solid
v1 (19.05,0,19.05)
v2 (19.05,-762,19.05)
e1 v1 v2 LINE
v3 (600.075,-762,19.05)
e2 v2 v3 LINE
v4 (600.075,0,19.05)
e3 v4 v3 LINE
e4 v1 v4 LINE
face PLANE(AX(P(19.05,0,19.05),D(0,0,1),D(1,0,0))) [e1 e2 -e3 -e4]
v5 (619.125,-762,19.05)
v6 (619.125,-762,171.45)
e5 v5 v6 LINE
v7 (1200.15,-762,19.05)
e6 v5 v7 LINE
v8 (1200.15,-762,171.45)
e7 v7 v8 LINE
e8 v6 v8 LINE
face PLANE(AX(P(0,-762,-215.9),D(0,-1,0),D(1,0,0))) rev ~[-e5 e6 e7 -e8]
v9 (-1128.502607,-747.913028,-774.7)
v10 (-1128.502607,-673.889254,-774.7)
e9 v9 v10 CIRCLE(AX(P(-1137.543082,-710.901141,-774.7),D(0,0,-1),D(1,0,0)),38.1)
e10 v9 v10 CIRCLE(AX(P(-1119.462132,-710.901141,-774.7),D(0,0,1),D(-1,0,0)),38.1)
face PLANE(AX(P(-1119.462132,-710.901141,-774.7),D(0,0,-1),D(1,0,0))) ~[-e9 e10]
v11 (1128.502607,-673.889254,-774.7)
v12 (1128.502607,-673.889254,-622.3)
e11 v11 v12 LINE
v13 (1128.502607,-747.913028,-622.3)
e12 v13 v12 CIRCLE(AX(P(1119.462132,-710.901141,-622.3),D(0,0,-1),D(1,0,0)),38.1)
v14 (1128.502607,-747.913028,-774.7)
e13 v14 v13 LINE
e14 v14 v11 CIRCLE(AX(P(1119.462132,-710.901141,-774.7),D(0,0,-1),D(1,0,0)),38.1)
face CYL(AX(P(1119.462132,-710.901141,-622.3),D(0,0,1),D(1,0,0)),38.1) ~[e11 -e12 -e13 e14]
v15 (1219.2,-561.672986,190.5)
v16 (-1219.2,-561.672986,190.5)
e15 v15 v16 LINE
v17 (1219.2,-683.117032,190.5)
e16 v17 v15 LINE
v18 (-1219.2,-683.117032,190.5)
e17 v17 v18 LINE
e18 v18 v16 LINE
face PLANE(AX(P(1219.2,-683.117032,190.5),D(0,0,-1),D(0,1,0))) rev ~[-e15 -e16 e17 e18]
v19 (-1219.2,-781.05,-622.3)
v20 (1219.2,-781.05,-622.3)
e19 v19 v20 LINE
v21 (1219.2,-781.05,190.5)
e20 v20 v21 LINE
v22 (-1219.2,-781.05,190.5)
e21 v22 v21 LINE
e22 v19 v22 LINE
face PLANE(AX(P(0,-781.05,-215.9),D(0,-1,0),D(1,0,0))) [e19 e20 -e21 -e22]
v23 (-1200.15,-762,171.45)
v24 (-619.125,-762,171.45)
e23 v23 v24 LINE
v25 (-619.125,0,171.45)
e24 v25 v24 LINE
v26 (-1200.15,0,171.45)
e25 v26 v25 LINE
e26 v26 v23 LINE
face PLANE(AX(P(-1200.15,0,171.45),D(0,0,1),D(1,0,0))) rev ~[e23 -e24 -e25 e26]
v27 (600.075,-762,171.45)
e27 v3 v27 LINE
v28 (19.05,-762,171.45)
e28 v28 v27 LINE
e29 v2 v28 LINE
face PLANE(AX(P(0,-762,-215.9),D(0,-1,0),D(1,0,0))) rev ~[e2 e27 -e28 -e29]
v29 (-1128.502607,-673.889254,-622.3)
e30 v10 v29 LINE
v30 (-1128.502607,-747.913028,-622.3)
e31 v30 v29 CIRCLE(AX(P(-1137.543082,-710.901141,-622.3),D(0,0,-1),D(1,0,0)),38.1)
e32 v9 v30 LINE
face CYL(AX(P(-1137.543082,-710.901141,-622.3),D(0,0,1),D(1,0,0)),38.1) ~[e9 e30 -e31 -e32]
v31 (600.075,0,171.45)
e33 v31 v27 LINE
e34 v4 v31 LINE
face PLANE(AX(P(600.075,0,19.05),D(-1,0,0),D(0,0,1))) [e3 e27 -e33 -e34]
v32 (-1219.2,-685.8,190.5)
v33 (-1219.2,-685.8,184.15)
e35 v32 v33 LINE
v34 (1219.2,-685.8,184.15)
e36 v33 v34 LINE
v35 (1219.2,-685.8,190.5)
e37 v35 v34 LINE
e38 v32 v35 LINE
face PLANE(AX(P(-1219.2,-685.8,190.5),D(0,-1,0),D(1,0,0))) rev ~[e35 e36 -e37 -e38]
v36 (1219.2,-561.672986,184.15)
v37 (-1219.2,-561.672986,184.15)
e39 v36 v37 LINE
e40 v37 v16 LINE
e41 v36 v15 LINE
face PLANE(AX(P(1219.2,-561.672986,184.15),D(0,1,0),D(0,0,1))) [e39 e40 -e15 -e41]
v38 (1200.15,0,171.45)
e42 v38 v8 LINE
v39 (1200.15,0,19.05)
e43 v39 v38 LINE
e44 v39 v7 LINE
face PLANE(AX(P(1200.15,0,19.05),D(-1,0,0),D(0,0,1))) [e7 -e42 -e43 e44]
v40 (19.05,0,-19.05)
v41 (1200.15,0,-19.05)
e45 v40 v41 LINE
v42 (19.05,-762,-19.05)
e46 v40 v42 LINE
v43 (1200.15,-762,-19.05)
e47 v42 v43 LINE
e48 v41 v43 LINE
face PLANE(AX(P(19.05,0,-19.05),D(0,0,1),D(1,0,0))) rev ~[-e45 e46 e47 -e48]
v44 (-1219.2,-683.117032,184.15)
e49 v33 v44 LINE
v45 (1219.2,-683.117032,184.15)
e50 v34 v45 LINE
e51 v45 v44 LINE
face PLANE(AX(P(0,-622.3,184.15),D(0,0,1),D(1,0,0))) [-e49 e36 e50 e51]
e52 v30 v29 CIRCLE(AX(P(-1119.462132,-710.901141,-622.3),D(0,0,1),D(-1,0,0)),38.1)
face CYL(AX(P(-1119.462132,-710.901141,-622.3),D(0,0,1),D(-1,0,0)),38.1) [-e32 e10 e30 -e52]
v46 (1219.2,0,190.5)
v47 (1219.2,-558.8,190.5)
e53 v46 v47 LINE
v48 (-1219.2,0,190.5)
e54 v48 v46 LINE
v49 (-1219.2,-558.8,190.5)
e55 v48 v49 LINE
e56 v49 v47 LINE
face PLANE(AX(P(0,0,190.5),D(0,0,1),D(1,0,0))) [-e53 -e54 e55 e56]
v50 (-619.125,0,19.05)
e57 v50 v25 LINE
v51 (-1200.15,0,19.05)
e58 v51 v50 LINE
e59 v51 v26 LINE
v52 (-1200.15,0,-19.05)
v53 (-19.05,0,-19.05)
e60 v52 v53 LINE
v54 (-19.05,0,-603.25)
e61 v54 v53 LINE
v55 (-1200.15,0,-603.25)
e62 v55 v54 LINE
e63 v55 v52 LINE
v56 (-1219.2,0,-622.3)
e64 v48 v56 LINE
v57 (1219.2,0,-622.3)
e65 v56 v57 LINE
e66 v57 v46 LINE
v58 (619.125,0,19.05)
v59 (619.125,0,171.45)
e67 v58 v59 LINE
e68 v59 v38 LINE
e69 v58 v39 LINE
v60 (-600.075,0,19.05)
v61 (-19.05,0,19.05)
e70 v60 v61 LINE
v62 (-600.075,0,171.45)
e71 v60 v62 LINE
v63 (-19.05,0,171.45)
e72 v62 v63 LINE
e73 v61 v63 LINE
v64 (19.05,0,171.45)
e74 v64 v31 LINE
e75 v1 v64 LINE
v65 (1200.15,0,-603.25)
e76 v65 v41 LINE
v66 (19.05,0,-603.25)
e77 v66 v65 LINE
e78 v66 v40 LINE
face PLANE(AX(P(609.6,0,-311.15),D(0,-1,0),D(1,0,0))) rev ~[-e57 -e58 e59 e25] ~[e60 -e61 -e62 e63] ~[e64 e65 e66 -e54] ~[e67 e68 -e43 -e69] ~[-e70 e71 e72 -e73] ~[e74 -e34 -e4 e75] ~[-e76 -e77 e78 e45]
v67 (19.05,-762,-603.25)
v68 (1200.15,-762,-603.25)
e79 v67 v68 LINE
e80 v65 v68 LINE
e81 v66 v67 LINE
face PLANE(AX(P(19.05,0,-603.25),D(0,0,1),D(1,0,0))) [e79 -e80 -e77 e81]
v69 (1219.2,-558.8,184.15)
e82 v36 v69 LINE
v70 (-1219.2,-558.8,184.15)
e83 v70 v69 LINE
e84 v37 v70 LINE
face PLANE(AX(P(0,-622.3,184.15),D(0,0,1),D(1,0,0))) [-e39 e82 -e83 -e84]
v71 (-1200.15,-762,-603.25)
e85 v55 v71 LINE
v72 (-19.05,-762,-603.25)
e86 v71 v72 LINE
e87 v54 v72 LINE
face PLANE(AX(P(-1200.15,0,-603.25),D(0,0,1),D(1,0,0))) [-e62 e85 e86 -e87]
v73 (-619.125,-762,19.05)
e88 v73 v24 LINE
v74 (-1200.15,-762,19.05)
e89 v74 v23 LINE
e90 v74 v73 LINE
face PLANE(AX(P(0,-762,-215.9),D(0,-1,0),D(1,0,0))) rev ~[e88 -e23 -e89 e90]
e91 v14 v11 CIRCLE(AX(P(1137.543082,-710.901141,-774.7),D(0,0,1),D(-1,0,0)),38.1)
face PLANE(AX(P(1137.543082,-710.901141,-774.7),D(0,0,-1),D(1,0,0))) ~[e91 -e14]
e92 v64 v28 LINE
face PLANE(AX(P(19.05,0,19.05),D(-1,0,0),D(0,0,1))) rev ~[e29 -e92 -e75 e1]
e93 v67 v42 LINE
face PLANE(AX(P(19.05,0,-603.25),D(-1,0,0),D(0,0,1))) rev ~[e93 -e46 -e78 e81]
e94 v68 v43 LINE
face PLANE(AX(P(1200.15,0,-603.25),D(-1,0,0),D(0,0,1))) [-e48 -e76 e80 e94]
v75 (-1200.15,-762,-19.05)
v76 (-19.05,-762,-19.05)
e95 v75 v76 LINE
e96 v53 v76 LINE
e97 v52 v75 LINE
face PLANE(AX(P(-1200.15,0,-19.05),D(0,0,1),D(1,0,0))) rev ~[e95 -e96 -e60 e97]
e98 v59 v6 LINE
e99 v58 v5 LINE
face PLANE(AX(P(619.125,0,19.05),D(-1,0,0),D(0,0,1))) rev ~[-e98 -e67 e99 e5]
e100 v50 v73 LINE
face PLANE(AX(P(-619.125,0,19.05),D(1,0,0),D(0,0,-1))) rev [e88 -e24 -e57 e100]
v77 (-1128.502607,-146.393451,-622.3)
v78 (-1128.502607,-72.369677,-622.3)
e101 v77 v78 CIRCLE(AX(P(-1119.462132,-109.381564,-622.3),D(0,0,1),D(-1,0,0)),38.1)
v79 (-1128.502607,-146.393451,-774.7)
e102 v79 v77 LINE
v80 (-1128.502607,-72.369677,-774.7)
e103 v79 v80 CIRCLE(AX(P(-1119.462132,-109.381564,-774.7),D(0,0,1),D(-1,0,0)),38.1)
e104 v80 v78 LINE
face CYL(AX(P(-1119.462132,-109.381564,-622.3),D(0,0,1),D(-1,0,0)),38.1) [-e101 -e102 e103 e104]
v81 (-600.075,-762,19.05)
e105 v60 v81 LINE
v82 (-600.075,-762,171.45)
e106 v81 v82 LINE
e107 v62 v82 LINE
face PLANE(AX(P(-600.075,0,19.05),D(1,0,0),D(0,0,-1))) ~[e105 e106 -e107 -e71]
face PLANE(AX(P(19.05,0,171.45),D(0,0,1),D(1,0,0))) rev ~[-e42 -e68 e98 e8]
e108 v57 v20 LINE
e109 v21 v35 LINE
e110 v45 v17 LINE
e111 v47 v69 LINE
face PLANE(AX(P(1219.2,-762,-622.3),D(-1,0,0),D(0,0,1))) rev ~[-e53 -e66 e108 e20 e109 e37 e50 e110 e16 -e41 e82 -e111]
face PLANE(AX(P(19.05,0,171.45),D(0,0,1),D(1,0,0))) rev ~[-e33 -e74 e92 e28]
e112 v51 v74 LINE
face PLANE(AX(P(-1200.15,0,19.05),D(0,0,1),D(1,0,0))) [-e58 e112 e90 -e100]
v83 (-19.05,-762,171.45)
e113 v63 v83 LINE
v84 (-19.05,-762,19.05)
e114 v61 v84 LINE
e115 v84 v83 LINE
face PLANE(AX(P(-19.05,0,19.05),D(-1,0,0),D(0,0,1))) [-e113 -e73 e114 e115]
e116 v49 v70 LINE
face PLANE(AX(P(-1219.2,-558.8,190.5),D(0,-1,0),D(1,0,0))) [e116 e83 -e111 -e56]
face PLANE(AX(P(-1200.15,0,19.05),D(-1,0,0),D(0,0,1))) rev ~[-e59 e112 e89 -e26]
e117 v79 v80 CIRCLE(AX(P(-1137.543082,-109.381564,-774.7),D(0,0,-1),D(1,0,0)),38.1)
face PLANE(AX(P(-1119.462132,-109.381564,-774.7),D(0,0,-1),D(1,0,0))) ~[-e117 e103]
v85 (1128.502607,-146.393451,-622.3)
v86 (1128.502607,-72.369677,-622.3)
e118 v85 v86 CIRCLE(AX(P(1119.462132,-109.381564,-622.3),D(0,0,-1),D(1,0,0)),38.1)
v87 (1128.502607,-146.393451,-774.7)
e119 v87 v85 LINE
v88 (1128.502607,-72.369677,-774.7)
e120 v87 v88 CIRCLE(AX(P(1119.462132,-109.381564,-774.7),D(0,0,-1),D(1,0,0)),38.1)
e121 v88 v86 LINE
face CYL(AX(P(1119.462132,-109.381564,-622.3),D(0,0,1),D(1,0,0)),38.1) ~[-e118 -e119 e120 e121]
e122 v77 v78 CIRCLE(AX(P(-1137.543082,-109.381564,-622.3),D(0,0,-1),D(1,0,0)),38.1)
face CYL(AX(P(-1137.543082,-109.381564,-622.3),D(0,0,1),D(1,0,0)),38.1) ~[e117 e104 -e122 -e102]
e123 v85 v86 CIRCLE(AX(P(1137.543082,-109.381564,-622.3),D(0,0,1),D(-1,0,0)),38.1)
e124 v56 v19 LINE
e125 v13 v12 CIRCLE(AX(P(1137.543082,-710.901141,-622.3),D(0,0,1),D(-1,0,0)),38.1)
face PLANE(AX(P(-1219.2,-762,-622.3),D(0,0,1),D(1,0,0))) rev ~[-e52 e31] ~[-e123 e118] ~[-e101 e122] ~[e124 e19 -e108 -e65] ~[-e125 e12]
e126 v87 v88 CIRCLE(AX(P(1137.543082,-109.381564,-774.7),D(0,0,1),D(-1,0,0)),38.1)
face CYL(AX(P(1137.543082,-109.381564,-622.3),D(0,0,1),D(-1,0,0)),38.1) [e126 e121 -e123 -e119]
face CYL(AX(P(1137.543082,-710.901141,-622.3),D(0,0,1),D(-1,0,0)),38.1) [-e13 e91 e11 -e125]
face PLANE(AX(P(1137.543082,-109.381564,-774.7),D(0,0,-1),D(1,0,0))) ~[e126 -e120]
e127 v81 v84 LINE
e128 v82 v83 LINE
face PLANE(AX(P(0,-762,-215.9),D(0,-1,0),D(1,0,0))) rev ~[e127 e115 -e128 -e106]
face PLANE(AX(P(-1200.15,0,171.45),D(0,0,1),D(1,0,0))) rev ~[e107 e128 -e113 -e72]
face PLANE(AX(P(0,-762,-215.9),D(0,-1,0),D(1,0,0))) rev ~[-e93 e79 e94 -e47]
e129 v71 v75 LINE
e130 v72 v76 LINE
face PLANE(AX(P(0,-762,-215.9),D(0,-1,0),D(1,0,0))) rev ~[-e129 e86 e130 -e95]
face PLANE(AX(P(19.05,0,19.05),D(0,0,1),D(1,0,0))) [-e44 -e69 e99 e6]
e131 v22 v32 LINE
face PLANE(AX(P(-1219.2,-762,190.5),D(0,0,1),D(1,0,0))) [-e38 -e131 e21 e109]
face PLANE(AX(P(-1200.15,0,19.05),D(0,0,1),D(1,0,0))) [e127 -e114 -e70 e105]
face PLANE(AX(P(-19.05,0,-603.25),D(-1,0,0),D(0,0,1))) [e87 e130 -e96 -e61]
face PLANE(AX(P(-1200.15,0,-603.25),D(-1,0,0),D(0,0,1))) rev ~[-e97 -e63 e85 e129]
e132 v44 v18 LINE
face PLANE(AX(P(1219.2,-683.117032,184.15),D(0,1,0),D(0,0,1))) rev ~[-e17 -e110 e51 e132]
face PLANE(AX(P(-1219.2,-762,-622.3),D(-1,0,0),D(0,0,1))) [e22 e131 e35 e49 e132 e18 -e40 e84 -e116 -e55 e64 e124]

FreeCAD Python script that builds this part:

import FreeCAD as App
import Part
import Sketcher
from FreeCAD import Vector
Q = App.Units.Quantity


def add_polygon(sketch, points):
    """Adds a closed chain of lines whose ends are joined by coincident constraints."""
    first, n = sketch.GeometryCount, len(points)
    for a, b in zip(points, points[1:] + points[:1]):
        sketch.addGeometry(Part.LineSegment(App.Vector(*a, 0), App.Vector(*b, 0)), False)
    for i in range(n):
        sketch.addConstraint(Sketcher.Constraint("Coincident", first + i, 2, first + (i + 1) % n, 1))

doc = App.newDocument("Part")
body = doc.addObject("PartDesign::Body", "Body")

sketch1 = body.newObject("Sketcher::SketchObject", "Sketch")
sketch1.AttachmentSupport = (doc.getObject("XZ_Plane"), [""])
sketch1.MapMode = "FlatFace"
add_polygon(sketch1, [(-1219, 190), (-1219, 0), (0, 0), (0, 190)])
add_polygon(sketch1, [(-19, 19), (-1200, 19), (-1200, 171), (-19, 171)])
sketch1.addConstraint(Sketcher.Constraint("Vertical", 0))
sketch1.addConstraint(Sketcher.Constraint("Horizontal", 1))
sketch1.addConstraint(Sketcher.Constraint("Vertical", 2))
sketch1.addConstraint(Sketcher.Constraint("Horizontal", 3))
sketch1.addConstraint(Sketcher.Constraint("Horizontal", 4))
sketch1.addConstraint(Sketcher.Constraint("Vertical", 5))
sketch1.addConstraint(Sketcher.Constraint("Horizontal", 6))
sketch1.addConstraint(Sketcher.Constraint("Vertical", 7))
sketch1.addConstraint(Sketcher.Constraint("Coincident", 1, 2, -1, 1))
sketch1.addConstraint(Sketcher.Constraint("DistanceX", 1, 1, 1, 2, Q("48 in")))
sketch1.addConstraint(Sketcher.Constraint("DistanceY", 5, 1, 5, 2, Q("6 in")))
sketch1.addConstraint(Sketcher.Constraint("DistanceX", 4, 2, 4, 1, Q("46.5 in")))
sketch1.addConstraint(Sketcher.Constraint("DistanceY", 0, 2, 0, 1, Q("7.5 in")))
sketch1.addConstraint(Sketcher.Constraint("DistanceX", 4, 2, -1, 1, Q("47.25 in")))
sketch1.addConstraint(Sketcher.Constraint("DistanceY", -1, 1, 4, 2, Q("0.75 in")))
pad1 = body.newObject("PartDesign::Pad", "Pad")
pad1.Profile = sketch1
pad1.Length = Q("30 in")

sketch2 = body.newObject("Sketcher::SketchObject", "Sketch001")
sketch2.AttachmentSupport = (doc.getObject("XZ_Plane"), [""])
sketch2.MapMode = "FlatFace"
add_polygon(sketch2, [(0, 190), (0, 0), (1219, 0), (1219, 190)])
add_polygon(sketch2, [(1200, 19), (19, 19), (19, 171), (1200, 171)])
sketch2.addConstraint(Sketcher.Constraint("Vertical", 0))
sketch2.addConstraint(Sketcher.Constraint("Horizontal", 1))
sketch2.addConstraint(Sketcher.Constraint("Vertical", 2))
sketch2.addConstraint(Sketcher.Constraint("Horizontal", 3))
sketch2.addConstraint(Sketcher.Constraint("Horizontal", 4))
sketch2.addConstraint(Sketcher.Constraint("Vertical", 5))
sketch2.addConstraint(Sketcher.Constraint("Horizontal", 6))
sketch2.addConstraint(Sketcher.Constraint("Vertical", 7))
sketch2.addConstraint(Sketcher.Constraint("Coincident", 0, 2, -1, 1))
sketch2.addConstraint(Sketcher.Constraint("DistanceX", 1, 1, 1, 2, Q("48 in")))
sketch2.addConstraint(Sketcher.Constraint("DistanceY", 5, 1, 5, 2, Q("6 in")))
sketch2.addConstraint(Sketcher.Constraint("DistanceX", 4, 2, 4, 1, Q("46.5 in")))
sketch2.addConstraint(Sketcher.Constraint("DistanceY", 0, 2, 0, 1, Q("7.5 in")))
sketch2.addConstraint(Sketcher.Constraint("DistanceX", -1, 1, 4, 2, Q("0.75 in")))
sketch2.addConstraint(Sketcher.Constraint("DistanceY", -1, 1, 4, 2, Q("0.75 in")))
pad2 = body.newObject("PartDesign::Pad", "Pad001")
pad2.Profile = sketch2
pad2.Length = Q("30 in")

sketch3 = body.newObject("Sketcher::SketchObject", "Sketch002")
sketch3.AttachmentSupport = (doc.getObject("XZ_Plane"), [""])
sketch3.MapMode = "FlatFace"
add_polygon(sketch3, [(-1219, 0), (-1219, -622), (0, -622), (0, 0)])
add_polygon(sketch3, [(-19, -603), (-1200, -603), (-1200, -19), (-19, -19)])
sketch3.addConstraint(Sketcher.Constraint("Vertical", 0))
sketch3.addConstraint(Sketcher.Constraint("Horizontal", 1))
sketch3.addConstraint(Sketcher.Constraint("Vertical", 2))
sketch3.addConstraint(Sketcher.Constraint("Horizontal", 3))
sketch3.addConstraint(Sketcher.Constraint("Horizontal", 4))
sketch3.addConstraint(Sketcher.Constraint("Vertical", 5))
sketch3.addConstraint(Sketcher.Constraint("Horizontal", 6))
sketch3.addConstraint(Sketcher.Constraint("Vertical", 7))
sketch3.addConstraint(Sketcher.Constraint("Coincident", 2, 2, -1, 1))
sketch3.addConstraint(Sketcher.Constraint("DistanceX", 1, 1, 1, 2, Q("48 in")))
sketch3.addConstraint(Sketcher.Constraint("DistanceY", 5, 1, 5, 2, Q("23 in")))
sketch3.addConstraint(Sketcher.Constraint("DistanceX", 4, 2, 4, 1, Q("46.5 in")))
sketch3.addConstraint(Sketcher.Constraint("DistanceY", 0, 2, 0, 1, Q("24.5 in")))
sketch3.addConstraint(Sketcher.Constraint("DistanceX", 4, 2, -1, 1, Q("47.25 in")))
sketch3.addConstraint(Sketcher.Constraint("DistanceY", 4, 2, -1, 1, Q("23.75 in")))
pad3 = body.newObject("PartDesign::Pad", "Pad002")
pad3.Profile = sketch3
pad3.Length = Q("30 in")

sketch4 = body.newObject("Sketcher::SketchObject", "Sketch003")
sketch4.AttachmentSupport = (doc.getObject("XZ_Plane"), [""])
sketch4.MapMode = "FlatFace"
add_polygon(sketch4, [(0, 0), (0, -622), (1219, -622), (1219, 0)])
add_polygon(sketch4, [(1200, -603), (19, -603), (19, -19), (1200, -19)])
sketch4.addConstraint(Sketcher.Constraint("Vertical", 0))
sketch4.addConstraint(Sketcher.Constraint("Horizontal", 1))
sketch4.addConstraint(Sketcher.Constraint("Vertical", 2))
sketch4.addConstraint(Sketcher.Constraint("Horizontal", 3))
sketch4.addConstraint(Sketcher.Constraint("Horizontal", 4))
sketch4.addConstraint(Sketcher.Constraint("Vertical", 5))
sketch4.addConstraint(Sketcher.Constraint("Horizontal", 6))
sketch4.addConstraint(Sketcher.Constraint("Vertical", 7))
sketch4.addConstraint(Sketcher.Constraint("Coincident", 3, 2, -1, 1))
sketch4.addConstraint(Sketcher.Constraint("DistanceX", 1, 1, 1, 2, Q("48 in")))
sketch4.addConstraint(Sketcher.Constraint("DistanceY", 5, 1, 5, 2, Q("23 in")))
sketch4.addConstraint(Sketcher.Constraint("DistanceX", 4, 2, 4, 1, Q("46.5 in")))
sketch4.addConstraint(Sketcher.Constraint("DistanceY", 0, 2, 0, 1, Q("24.5 in")))
sketch4.addConstraint(Sketcher.Constraint("DistanceX", -1, 1, 4, 2, Q("0.75 in")))
sketch4.addConstraint(Sketcher.Constraint("DistanceY", 4, 2, -1, 1, Q("23.75 in")))
pad4 = body.newObject("PartDesign::Pad", "Pad003")
pad4.Profile = sketch4
pad4.Length = Q("30 in")

sketch5 = body.newObject("Sketcher::SketchObject", "Sketch004")
sketch5.AttachmentSupport = (doc.getObject("XY_Plane"), [""])
sketch5.MapMode = "FlatFace"
sketch5.AttachmentOffset = App.Placement(Vector(0, 0, 7.5 * 25.4), App.Rotation())
add_polygon(sketch5, [(-1219, -559), (-1219, -686), (1219, -686), (1219, -559)])
sketch5.addConstraint(Sketcher.Constraint("Vertical", 0))
sketch5.addConstraint(Sketcher.Constraint("Horizontal", 1))
sketch5.addConstraint(Sketcher.Constraint("Vertical", 2))
sketch5.addConstraint(Sketcher.Constraint("Horizontal", 3))
sketch5.addConstraint(Sketcher.Constraint("DistanceX", 1, 1, 1, 2, Q("96 in")))
sketch5.addConstraint(Sketcher.Constraint("DistanceY", 0, 2, 0, 1, Q("5 in")))
sketch5.addConstraint(Sketcher.Constraint("DistanceX", 0, 2, -1, 1, Q("48 in")))
sketch5.addConstraint(Sketcher.Constraint("DistanceY", 0, 2, -1, 1, Q("27 in")))
pocket1 = body.newObject("PartDesign::Pocket", "Pocket")
pocket1.Profile = sketch5
pocket1.Length = Q("0.25 in")

sketch6 = body.newObject("Sketcher::SketchObject", "Sketch005")
sketch6.AttachmentSupport = (doc.getObject("XZ_Plane"), [""])
sketch6.MapMode = "FlatFace"
sketch6.AttachmentOffset = App.Placement(Vector(0, 0, 30 * 25.4), App.Rotation())
add_polygon(sketch6, [(-1219, 190), (-1219, -622), (1219, -622), (1219, 190)])
sketch6.addConstraint(Sketcher.Constraint("Vertical", 0))
sketch6.addConstraint(Sketcher.Constraint("Horizontal", 1))
sketch6.addConstraint(Sketcher.Constraint("Vertical", 2))
sketch6.addConstraint(Sketcher.Constraint("Horizontal", 3))
sketch6.addConstraint(Sketcher.Constraint("DistanceX", 1, 1, 1, 2, Q("96 in")))
sketch6.addConstraint(Sketcher.Constraint("DistanceY", 0, 2, 0, 1, Q("32 in")))
sketch6.addConstraint(Sketcher.Constraint("DistanceX", 0, 2, -1, 1, Q("48 in")))
sketch6.addConstraint(Sketcher.Constraint("DistanceY", 0, 2, -1, 1, Q("24.5 in")))
pad5 = body.newObject("PartDesign::Pad", "Pad004")
pad5.Profile = sketch6
pad5.Length = Q("0.75 in")

sketch7 = body.newObject("Sketcher::SketchObject", "Sketch006")
sketch7.AttachmentSupport = (doc.getObject("XY_Plane"), [""])
sketch7.MapMode = "FlatFace"
sketch7.AttachmentOffset = App.Placement(Vector(0, 0, -24.5 * 25.4), App.Rotation())
sketch7.addGeometry(Part.Circle(Vector(1119, -109, 0), Vector(0, 0, 1), 38), False)
sketch7.addGeometry(Part.Circle(Vector(-1138, -711, 0), Vector(0, 0, 1), 38), False)
sketch7.addGeometry(Part.Circle(Vector(1119, -711, 0), Vector(0, 0, 1), 38), False)
sketch7.addGeometry(Part.Circle(Vector(-1138, -109, 0), Vector(0, 0, 1), 38), False)
sketch7.addConstraint(Sketcher.Constraint("Equal", 0, 1))
sketch7.addConstraint(Sketcher.Constraint("Equal", 1, 2))
sketch7.addConstraint(Sketcher.Constraint("Equal", 2, 3))
sketch7.addConstraint(Sketcher.Constraint("Horizontal", 1, 3, 2, 3))
sketch7.addConstraint(Sketcher.Constraint("Horizontal", 0, 3, 3, 3))
sketch7.addConstraint(Sketcher.Constraint("Vertical", 0, 3, 2, 3))
sketch7.addConstraint(Sketcher.Constraint("Vertical", 1, 3, 3, 3))
sketch7.addConstraint(Sketcher.Constraint("Diameter", 0, Q("3 in")))
sketch7.addConstraint(Sketcher.Constraint("DistanceX", 1, 3, -1, 1, Q("1137.543082 mm")))
sketch7.addConstraint(Sketcher.Constraint("DistanceY", 1, 3, -1, 1, Q("710.901141 mm")))
sketch7.addConstraint(Sketcher.Constraint("DistanceX", -1, 1, 0, 3, Q("1119.462132 mm")))
sketch7.addConstraint(Sketcher.Constraint("DistanceY", 0, 3, -1, 1, Q("109.381564 mm")))
pad6 = body.newObject("PartDesign::Pad", "Pad005")
pad6.Profile = sketch7
pad6.Length = Q("6 in")
pad6.Reversed = True

sketch8 = body.newObject("Sketcher::SketchObject", "Sketch007")
sketch8.AttachmentSupport = (doc.getObject("XZ_Plane"), [""])
sketch8.MapMode = "FlatFace"
add_polygon(sketch8, [(619, 171), (619, 19), (600, 19), (600, 171)])
sketch8.addConstraint(Sketcher.Constraint("Vertical", 0))
sketch8.addConstraint(Sketcher.Constraint("Horizontal", 1))
sketch8.addConstraint(Sketcher.Constraint("Vertical", 2))
sketch8.addConstraint(Sketcher.Constraint("Horizontal", 3))
sketch8.addConstraint(Sketcher.Constraint("DistanceY", 0, 2, 0, 1, Q("6 in")))
sketch8.addConstraint(Sketcher.Constraint("DistanceX", 1, 2, 1, 1, Q("0.75 in")))
sketch8.addConstraint(Sketcher.Constraint("DistanceY", -1, 1, 0, 2, Q("0.75 in")))
sketch8.addConstraint(Sketcher.Constraint("DistanceX", -1, 1, 0, 2, Q("24.375 in")))
pad7 = body.newObject("PartDesign::Pad", "Pad006")
pad7.Profile = sketch8
pad7.Type = "UpToLast"
body2 = doc.addObject("PartDesign::Body", "Body001")
doc.recompute()

body2.BaseFeature = body
doc.recompute()

mirroring = doc.addObject("Part::Mirroring", "Mirroring")
mirroring.Source = body
mirroring.Base = Vector(0, 0, 0)
mirroring.Normal = Vector(1, 0, 0)
body3 = doc.addObject("PartDesign::Body", "Body002")
body3.BaseFeature = mirroring
boolean = body2.newObject("PartDesign::Boolean", "Boolean")
boolean.Type = "Fuse"
boolean.addObjects([body3])
doc.recompute()

sketch9 = body2.newObject("Sketcher::SketchObject", "Sketch008")
sketch9.AttachmentSupport = (doc.getObject("YZ_Plane001"), [""])
sketch9.MapMode = "FlatFace"
sketch9.AttachmentOffset = App.Placement(Vector(0, 0, 48 * 25.4), App.Rotation())
add_polygon(sketch9, [(-683, 190), (-683, 184), (-562, 184), (-562, 190)])
sketch9.addConstraint(Sketcher.Constraint("Vertical", 0))
sketch9.addConstraint(Sketcher.Constraint("Horizontal", 1))
sketch9.addConstraint(Sketcher.Constraint("Vertical", 2))
sketch9.addConstraint(Sketcher.Constraint("Horizontal", 3))
sketch9.addConstraint(Sketcher.Constraint("DistanceY", 0, 2, 0, 1, Q("0.25 in")))
sketch9.addConstraint(Sketcher.Constraint("DistanceY", -1, 1, 2, 2, Q("7.5 in")))
sketch9.addConstraint(Sketcher.Constraint("DistanceX", 1, 1, 1, 2, Q("121.444046 mm")))
sketch9.addConstraint(Sketcher.Constraint("DistanceX", 0, 2, -1, 1, Q("683.117032 mm")))
pad8 = body2.newObject("PartDesign::Pad", "Pad007")
pad8.Profile = sketch9
pad8.Length = Q("96 in")
pad8.Reversed = True
mirroring.Visibility = False

doc.recompute()
